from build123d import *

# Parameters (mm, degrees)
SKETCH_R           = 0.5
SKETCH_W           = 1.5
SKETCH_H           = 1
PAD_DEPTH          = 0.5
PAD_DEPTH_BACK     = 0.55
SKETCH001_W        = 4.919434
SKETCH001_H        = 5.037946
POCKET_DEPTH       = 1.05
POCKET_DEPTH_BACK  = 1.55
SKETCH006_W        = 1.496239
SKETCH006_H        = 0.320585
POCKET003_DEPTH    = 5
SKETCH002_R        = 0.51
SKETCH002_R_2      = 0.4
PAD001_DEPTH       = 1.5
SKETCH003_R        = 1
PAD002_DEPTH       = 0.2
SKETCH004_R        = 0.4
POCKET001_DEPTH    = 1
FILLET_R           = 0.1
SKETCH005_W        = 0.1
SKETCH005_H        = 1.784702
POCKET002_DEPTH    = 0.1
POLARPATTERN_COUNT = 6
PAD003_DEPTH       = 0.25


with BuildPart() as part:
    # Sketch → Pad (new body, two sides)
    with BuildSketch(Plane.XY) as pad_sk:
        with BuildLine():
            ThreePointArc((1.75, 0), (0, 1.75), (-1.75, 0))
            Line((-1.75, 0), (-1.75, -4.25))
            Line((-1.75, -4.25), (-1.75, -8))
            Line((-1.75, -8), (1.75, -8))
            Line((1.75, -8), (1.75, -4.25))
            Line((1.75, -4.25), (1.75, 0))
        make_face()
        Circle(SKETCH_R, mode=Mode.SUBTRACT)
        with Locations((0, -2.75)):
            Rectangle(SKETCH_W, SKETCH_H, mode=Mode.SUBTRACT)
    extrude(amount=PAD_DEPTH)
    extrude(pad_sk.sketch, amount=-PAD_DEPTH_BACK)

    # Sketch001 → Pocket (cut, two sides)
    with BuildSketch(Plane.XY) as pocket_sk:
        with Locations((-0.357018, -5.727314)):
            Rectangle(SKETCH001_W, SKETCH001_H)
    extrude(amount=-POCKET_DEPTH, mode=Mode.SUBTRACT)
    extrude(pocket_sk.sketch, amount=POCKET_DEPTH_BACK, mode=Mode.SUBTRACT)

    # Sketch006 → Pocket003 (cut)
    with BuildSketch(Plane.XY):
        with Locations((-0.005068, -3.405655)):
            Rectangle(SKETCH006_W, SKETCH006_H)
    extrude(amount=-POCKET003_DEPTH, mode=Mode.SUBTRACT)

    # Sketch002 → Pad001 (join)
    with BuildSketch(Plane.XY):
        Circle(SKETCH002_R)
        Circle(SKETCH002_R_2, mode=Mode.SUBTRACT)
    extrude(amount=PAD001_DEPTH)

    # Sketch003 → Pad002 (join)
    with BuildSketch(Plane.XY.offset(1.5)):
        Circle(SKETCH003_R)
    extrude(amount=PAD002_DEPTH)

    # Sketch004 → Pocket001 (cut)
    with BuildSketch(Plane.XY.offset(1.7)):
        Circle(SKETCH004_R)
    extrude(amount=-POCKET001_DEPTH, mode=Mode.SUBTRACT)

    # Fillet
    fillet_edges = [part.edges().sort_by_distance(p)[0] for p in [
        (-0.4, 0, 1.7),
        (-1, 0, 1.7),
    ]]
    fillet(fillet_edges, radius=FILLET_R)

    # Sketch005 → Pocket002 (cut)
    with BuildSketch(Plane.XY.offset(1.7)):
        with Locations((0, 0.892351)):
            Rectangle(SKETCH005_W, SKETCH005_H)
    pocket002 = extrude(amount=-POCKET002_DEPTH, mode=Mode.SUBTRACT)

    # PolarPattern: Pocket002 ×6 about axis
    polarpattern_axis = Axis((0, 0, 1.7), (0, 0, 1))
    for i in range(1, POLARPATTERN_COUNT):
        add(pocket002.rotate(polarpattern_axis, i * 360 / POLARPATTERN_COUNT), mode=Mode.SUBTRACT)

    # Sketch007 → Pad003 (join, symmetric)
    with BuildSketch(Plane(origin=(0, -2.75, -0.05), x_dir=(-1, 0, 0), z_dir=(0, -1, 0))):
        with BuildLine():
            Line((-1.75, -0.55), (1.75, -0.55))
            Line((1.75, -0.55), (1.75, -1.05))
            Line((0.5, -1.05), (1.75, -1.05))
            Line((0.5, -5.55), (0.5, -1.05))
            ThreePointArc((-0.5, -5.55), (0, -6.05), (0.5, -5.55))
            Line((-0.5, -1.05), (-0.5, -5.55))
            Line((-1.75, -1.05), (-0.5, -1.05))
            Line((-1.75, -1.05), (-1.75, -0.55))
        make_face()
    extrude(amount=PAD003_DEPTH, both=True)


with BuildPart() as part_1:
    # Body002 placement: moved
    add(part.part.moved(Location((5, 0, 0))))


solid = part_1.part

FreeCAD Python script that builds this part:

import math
import FreeCAD as App
import Part
import Sketcher
from FreeCAD import Vector


def edges_at(feature, points):
    """Names of the edges that pass closest to the given points."""
    edges = feature.Shape.Edges
    near = lambda p: min(range(len(edges)), key=lambda i: edges[i].distToShape(Part.Vertex(*p))[0])
    return sorted({f"Edge{near(p) + 1}" for p in points})

doc = App.newDocument("Part")
body = doc.addObject("PartDesign::Body", "Body")

sketch1 = doc.addObject("Sketcher::SketchObject", "Sketch")
body.addObject(sketch1)
sketch1.AttachmentSupport = (doc.XY_Plane, [""])
sketch1.MapMode = "FlatFace"
sketch1.addGeometry([
    Part.ArcOfCircle(Part.Circle(Vector(0, 0, 0), Vector(0, 0, 1), 1.75), math.radians(0), math.radians(180)),
    Part.LineSegment(Vector(-1.75, 0, 0), Vector(-1.75, -8, 0)),
    Part.LineSegment(Vector(-1.75, -8, 0), Vector(1.75, -8, 0)),
    Part.LineSegment(Vector(1.75, -8, 0), Vector(1.75, 0, 0)),
    Part.LineSegment(Vector(0.75, -3.25, 0), Vector(-0.75, -3.25, 0)),
    Part.LineSegment(Vector(-0.75, -3.25, 0), Vector(-0.75, -2.25, 0)),
    Part.LineSegment(Vector(-0.75, -2.25, 0), Vector(0.75, -2.25, 0)),
    Part.LineSegment(Vector(0.75, -2.25, 0), Vector(0.75, -3.25, 0)),
    Part.Circle(Vector(0, 0, 0), Vector(0, 0, 1), 0.5),
], False)
sketch1.addConstraint([
    Sketcher.Constraint("Tangent", 0, 2, 1, 1),
    Sketcher.Constraint("Coincident", 1, 2, 2, 1),
    Sketcher.Constraint("Coincident", 2, 2, 3, 1),
    Sketcher.Constraint("Tangent", 3, 2, 0, 1),
    Sketcher.Constraint("Coincident", 4, 2, 5, 1),
    Sketcher.Constraint("Coincident", 5, 2, 6, 1),
    Sketcher.Constraint("Coincident", 6, 2, 7, 1),
    Sketcher.Constraint("Coincident", 7, 2, 4, 1),
    Sketcher.Constraint("Vertical", 1),
    Sketcher.Constraint("Horizontal", 2),
    Sketcher.Constraint("Vertical", 3),
    Sketcher.Constraint("Horizontal", 4),
    Sketcher.Constraint("Vertical", 5),
    Sketcher.Constraint("Horizontal", 6),
    Sketcher.Constraint("Vertical", 7),
    Sketcher.Constraint("Coincident", 0, 3, -1, 1),
    Sketcher.Constraint("Coincident", 8, 3, -1, 1),
    Sketcher.Constraint("Diameter", 8, 1.0),
    Sketcher.Constraint("DistanceY", 1, 2, 1, 1, 8.0),
    Sketcher.Constraint("DistanceY", 5, 1, 5, 2, 1.0),
    Sketcher.Constraint("Radius", 0, 1.75),
    Sketcher.Constraint("DistanceX", 4, 2, 4, 1, 1.5),
    Sketcher.Constraint("DistanceX", 0, 2, 4, 2, 1.0),
    Sketcher.Constraint("DistanceY", 4, 2, -1, 1, 3.25),
])
pad1 = doc.addObject("PartDesign::Pad", "Pad")
body.addObject(pad1)
pad1.Profile = sketch1
pad1.Type = "TwoLengths"
pad1.Length = 0.5
pad1.Length2 = 0.55

sketch2 = doc.addObject("Sketcher::SketchObject", "Sketch001")
body.addObject(sketch2)
sketch2.AttachmentSupport = (doc.XY_Plane, [""])
sketch2.MapMode = "FlatFace"
sketch2.addGeometry([
    Part.LineSegment(Vector(-2.816735, -3.208341, 0), Vector(-2.816735, -8.246287, 0)),
    Part.LineSegment(Vector(-2.816735, -8.246287, 0), Vector(2.102699, -8.246287, 0)),
    Part.LineSegment(Vector(2.102699, -8.246287, 0), Vector(2.102699, -3.208341, 0)),
    Part.LineSegment(Vector(2.102699, -3.208341, 0), Vector(-2.816735, -3.208341, 0)),
], False)
sketch2.addConstraint([
    Sketcher.Constraint("Coincident", 0, 2, 1, 1),
    Sketcher.Constraint("Coincident", 1, 2, 2, 1),
    Sketcher.Constraint("Coincident", 2, 2, 3, 1),
    Sketcher.Constraint("Coincident", 3, 2, 0, 1),
    Sketcher.Constraint("Vertical", 0),
    Sketcher.Constraint("Horizontal", 1),
    Sketcher.Constraint("Vertical", 2),
    Sketcher.Constraint("Horizontal", 3),
    Sketcher.Constraint("DistanceX", -1, 1, 1, 2, 2.102699),
    Sketcher.Constraint("DistanceX", 1, 1, 1, 2, 4.919434),
    Sketcher.Constraint("DistanceY", 0, 2, 0, 1, 5.037946),
    Sketcher.Constraint("DistanceY", 2, 2, -1, 1, 3.208341),
])
pocket1 = doc.addObject("PartDesign::Pocket", "Pocket")
body.addObject(pocket1)
pocket1.Profile = sketch2
pocket1.Type = "ThroughAll"
pocket1.Midplane = True

sketch3 = doc.addObject("Sketcher::SketchObject", "Sketch002")
body.addObject(sketch3)
sketch3.AttachmentSupport = (doc.XY_Plane, [""])
sketch3.MapMode = "FlatFace"
sketch3.addGeometry([
    Part.LineSegment(Vector(-0.753188, -3.245363, 0), Vector(-0.753188, -3.565948, 0)),
    Part.LineSegment(Vector(-0.753188, -3.565948, 0), Vector(0.743051, -3.565948, 0)),
    Part.LineSegment(Vector(0.743051, -3.565948, 0), Vector(0.743051, -3.245363, 0)),
    Part.LineSegment(Vector(0.743051, -3.245363, 0), Vector(-0.753188, -3.245363, 0)),
], False)
sketch3.addConstraint([
    Sketcher.Constraint("Coincident", 0, 2, 1, 1),
    Sketcher.Constraint("Coincident", 1, 2, 2, 1),
    Sketcher.Constraint("Coincident", 2, 2, 3, 1),
    Sketcher.Constraint("Coincident", 3, 2, 0, 1),
    Sketcher.Constraint("Vertical", 0),
    Sketcher.Constraint("Horizontal", 1),
    Sketcher.Constraint("Vertical", 2),
    Sketcher.Constraint("Horizontal", 3),
    Sketcher.Constraint("DistanceX", 1, 1, 1, 2, 1.496239),
    Sketcher.Constraint("DistanceY", 0, 2, 0, 1, 0.320585),
    Sketcher.Constraint("DistanceX", -1, 1, 1, 2, 0.743051),
    Sketcher.Constraint("DistanceY", 0, 2, -1, 1, 3.565948),
])
pocket2 = doc.addObject("PartDesign::Pocket", "Pocket001")
body.addObject(pocket2)
pocket2.Profile = sketch3
pocket2.Length = 5

sketch4 = doc.addObject("Sketcher::SketchObject", "Sketch003")
body.addObject(sketch4)
sketch4.AttachmentSupport = (doc.XY_Plane, [""])
sketch4.MapMode = "FlatFace"
sketch4.addGeometry([
    Part.Circle(Vector(0, 0, 0), Vector(0, 0, 1), 0.51),
    Part.Circle(Vector(0, 0, 0), Vector(0, 0, 1), 0.4),
], False)
sketch4.addConstraint([
    Sketcher.Constraint("Coincident", 0, 3, -1, 1),
    Sketcher.Constraint("Coincident", 1, 3, -1, 1),
    Sketcher.Constraint("Diameter", 1, 0.8),
    Sketcher.Constraint("Diameter", 0, 1.02),
])
pad2 = doc.addObject("PartDesign::Pad", "Pad001")
body.addObject(pad2)
pad2.Profile = sketch4
pad2.Length = 1.5

sketch5 = doc.addObject("Sketcher::SketchObject", "Sketch004")
body.addObject(sketch5)
sketch5.AttachmentSupport = (doc.XY_Plane, [""])
sketch5.MapMode = "FlatFace"
sketch5.AttachmentOffset = App.Placement(Vector(0, 0, 1.5), App.Rotation())
sketch5.addGeometry(Part.Circle(Vector(0, 0, 0), Vector(0, 0, 1), 1), False)
sketch5.addConstraint([
    Sketcher.Constraint("Coincident", 0, 3, -1, 1),
    Sketcher.Constraint("Diameter", 0, 2.0),
])
pad3 = doc.addObject("PartDesign::Pad", "Pad002")
body.addObject(pad3)
pad3.Profile = sketch5
pad3.Length = 0.2

sketch6 = doc.addObject("Sketcher::SketchObject", "Sketch005")
body.addObject(sketch6)
sketch6.AttachmentSupport = (doc.XY_Plane, [""])
sketch6.MapMode = "FlatFace"
sketch6.AttachmentOffset = App.Placement(Vector(0, 0, 1.7), App.Rotation())
sketch6.addGeometry(Part.Circle(Vector(0, 0, 0), Vector(0, 0, 1), 0.4), False)
sketch6.addConstraint([
    Sketcher.Constraint("Coincident", 0, 3, -1, 1),
    Sketcher.Constraint("Diameter", 0, 0.8),
])
pocket3 = doc.addObject("PartDesign::Pocket", "Pocket002")
body.addObject(pocket3)
pocket3.Profile = sketch6
pocket3.Length = 1
doc.recompute()

fillet = doc.addObject("PartDesign::Fillet", "Fillet")
body.addObject(fillet)
fillet.Base = (pocket3, edges_at(pocket3, [(-0.4, 0, 1.7), (-1, 0, 1.7)]))
fillet.Radius = 0.1

sketch7 = doc.addObject("Sketcher::SketchObject", "Sketch006")
body.addObject(sketch7)
sketch7.AttachmentSupport = (doc.XY_Plane, [""])
sketch7.MapMode = "FlatFace"
sketch7.AttachmentOffset = App.Placement(Vector(0, 0, 1.7), App.Rotation())
sketch7.addGeometry([
    Part.LineSegment(Vector(-0.05, 1.784702, 0), Vector(-0.05, 0, 0)),
    Part.LineSegment(Vector(-0.05, 0, 0), Vector(0.05, 0, 0)),
    Part.LineSegment(Vector(0.05, 0, 0), Vector(0.05, 1.784702, 0)),
    Part.LineSegment(Vector(0.05, 1.784702, 0), Vector(-0.05, 1.784702, 0)),
], False)
sketch7.addConstraint([
    Sketcher.Constraint("Coincident", 0, 2, 1, 1),
    Sketcher.Constraint("Coincident", 1, 2, 2, 1),
    Sketcher.Constraint("Coincident", 2, 2, 3, 1),
    Sketcher.Constraint("Coincident", 3, 2, 0, 1),
    Sketcher.Constraint("Vertical", 0),
    Sketcher.Constraint("Horizontal", 1),
    Sketcher.Constraint("Vertical", 2),
    Sketcher.Constraint("Horizontal", 3),
    Sketcher.Constraint("Symmetric", 0, 2, 1, 2, -1, 1),
    Sketcher.Constraint("DistanceX", 1, 1, 1, 2, 0.1),
    Sketcher.Constraint("DistanceY", 0, 2, 0, 1, 1.784702),
])
pocket4 = doc.addObject("PartDesign::Pocket", "Pocket003")
body.addObject(pocket4)
pocket4.Profile = sketch7
pocket4.Length = 0.1
doc.recompute()

polarpattern = doc.addObject("PartDesign::PolarPattern", "PolarPattern")
body.addObject(polarpattern)
polarpattern.Originals = [pocket4]
polarpattern.Axis = (doc.Z_Axis, [""])
polarpattern.Angle = 360
polarpattern.Occurrences = 6
body.Tip = polarpattern

sketch8 = doc.addObject("Sketcher::SketchObject", "Sketch007")
body.addObject(sketch8)
sketch8.AttachmentSupport = (doc.XZ_Plane, [""])
sketch8.MapMode = "FlatFace"
sketch8.AttachmentOffset = App.Placement(Vector(0, 0, 2.75), App.Rotation())
sketch8.addGeometry([
    Part.LineSegment(Vector(-1.75, 0.5, 0), Vector(1.75, 0.5, 0)),
    Part.LineSegment(Vector(1.75, 0.5, 0), Vector(1.75, 1, 0)),
    Part.LineSegment(Vector(1.75, 1, 0), Vector(0.5, 1, 0)),
    Part.LineSegment(Vector(0.5, 1, 0), Vector(0.5, 5.5, 0)),
    Part.ArcOfCircle(Part.Circle(Vector(0, 5.5, 0), Vector(0, 0, 1), 0.5), math.radians(0), math.radians(180)),
    Part.LineSegment(Vector(-0.5, 5.5, 0), Vector(-0.5, 1, 0)),
    Part.LineSegment(Vector(-0.5, 1, 0), Vector(-1.75, 1, 0)),
    Part.LineSegment(Vector(-1.75, 1, 0), Vector(-1.75, 0.5, 0)),
], False)
sketch8.addConstraint([
    Sketcher.Constraint("Coincident", 0, 2, 1, 1),
    Sketcher.Constraint("Coincident", 1, 2, 2, 1),
    Sketcher.Constraint("Coincident", 2, 2, 3, 1),
    Sketcher.Constraint("Tangent", 3, 2, 4, 1),
    Sketcher.Constraint("Tangent", 4, 2, 5, 1),
    Sketcher.Constraint("Coincident", 5, 2, 6, 1),
    Sketcher.Constraint("Coincident", 6, 2, 7, 1),
    Sketcher.Constraint("Coincident", 7, 2, 0, 1),
    Sketcher.Constraint("Horizontal", 0),
    Sketcher.Constraint("Vertical", 1),
    Sketcher.Constraint("Horizontal", 2),
    Sketcher.Constraint("Vertical", 3),
    Sketcher.Constraint("Vertical", 5),
    Sketcher.Constraint("Horizontal", 6),
    Sketcher.Constraint("Vertical", 7),
    Sketcher.Constraint("Symmetric", 2, 2, 5, 2, -2),
    Sketcher.Constraint("Equal", 2, 6),
    Sketcher.Constraint("Radius", 4, 0.5),
    Sketcher.Constraint("DistanceX", 0, 1, 0, 2, 3.5),
    Sketcher.Constraint("DistanceY", 1, 1, 1, 2, 0.5),
    Sketcher.Constraint("DistanceY", 3, 1, 3, 2, 4.5),
    Sketcher.Constraint("DistanceY", -1, 1, 1, 2, 1.0),
])
pad4 = doc.addObject("PartDesign::Pad", "Pad003")
body.addObject(pad4)
pad4.Profile = sketch8
pad4.Length = 0.5
pad4.Midplane = True
body2 = doc.addObject("PartDesign::Body", "Body001")
doc.recompute()

body.Placement = App.Placement(Vector(5, 0, 0), App.Rotation(Vector(0, 0, 1), 0))
boolean = doc.addObject("PartDesign::Boolean", "Boolean")
body2.addObject(boolean)
boolean.Type = "Fuse"
boolean.addObjects([body])

doc.recompute()
